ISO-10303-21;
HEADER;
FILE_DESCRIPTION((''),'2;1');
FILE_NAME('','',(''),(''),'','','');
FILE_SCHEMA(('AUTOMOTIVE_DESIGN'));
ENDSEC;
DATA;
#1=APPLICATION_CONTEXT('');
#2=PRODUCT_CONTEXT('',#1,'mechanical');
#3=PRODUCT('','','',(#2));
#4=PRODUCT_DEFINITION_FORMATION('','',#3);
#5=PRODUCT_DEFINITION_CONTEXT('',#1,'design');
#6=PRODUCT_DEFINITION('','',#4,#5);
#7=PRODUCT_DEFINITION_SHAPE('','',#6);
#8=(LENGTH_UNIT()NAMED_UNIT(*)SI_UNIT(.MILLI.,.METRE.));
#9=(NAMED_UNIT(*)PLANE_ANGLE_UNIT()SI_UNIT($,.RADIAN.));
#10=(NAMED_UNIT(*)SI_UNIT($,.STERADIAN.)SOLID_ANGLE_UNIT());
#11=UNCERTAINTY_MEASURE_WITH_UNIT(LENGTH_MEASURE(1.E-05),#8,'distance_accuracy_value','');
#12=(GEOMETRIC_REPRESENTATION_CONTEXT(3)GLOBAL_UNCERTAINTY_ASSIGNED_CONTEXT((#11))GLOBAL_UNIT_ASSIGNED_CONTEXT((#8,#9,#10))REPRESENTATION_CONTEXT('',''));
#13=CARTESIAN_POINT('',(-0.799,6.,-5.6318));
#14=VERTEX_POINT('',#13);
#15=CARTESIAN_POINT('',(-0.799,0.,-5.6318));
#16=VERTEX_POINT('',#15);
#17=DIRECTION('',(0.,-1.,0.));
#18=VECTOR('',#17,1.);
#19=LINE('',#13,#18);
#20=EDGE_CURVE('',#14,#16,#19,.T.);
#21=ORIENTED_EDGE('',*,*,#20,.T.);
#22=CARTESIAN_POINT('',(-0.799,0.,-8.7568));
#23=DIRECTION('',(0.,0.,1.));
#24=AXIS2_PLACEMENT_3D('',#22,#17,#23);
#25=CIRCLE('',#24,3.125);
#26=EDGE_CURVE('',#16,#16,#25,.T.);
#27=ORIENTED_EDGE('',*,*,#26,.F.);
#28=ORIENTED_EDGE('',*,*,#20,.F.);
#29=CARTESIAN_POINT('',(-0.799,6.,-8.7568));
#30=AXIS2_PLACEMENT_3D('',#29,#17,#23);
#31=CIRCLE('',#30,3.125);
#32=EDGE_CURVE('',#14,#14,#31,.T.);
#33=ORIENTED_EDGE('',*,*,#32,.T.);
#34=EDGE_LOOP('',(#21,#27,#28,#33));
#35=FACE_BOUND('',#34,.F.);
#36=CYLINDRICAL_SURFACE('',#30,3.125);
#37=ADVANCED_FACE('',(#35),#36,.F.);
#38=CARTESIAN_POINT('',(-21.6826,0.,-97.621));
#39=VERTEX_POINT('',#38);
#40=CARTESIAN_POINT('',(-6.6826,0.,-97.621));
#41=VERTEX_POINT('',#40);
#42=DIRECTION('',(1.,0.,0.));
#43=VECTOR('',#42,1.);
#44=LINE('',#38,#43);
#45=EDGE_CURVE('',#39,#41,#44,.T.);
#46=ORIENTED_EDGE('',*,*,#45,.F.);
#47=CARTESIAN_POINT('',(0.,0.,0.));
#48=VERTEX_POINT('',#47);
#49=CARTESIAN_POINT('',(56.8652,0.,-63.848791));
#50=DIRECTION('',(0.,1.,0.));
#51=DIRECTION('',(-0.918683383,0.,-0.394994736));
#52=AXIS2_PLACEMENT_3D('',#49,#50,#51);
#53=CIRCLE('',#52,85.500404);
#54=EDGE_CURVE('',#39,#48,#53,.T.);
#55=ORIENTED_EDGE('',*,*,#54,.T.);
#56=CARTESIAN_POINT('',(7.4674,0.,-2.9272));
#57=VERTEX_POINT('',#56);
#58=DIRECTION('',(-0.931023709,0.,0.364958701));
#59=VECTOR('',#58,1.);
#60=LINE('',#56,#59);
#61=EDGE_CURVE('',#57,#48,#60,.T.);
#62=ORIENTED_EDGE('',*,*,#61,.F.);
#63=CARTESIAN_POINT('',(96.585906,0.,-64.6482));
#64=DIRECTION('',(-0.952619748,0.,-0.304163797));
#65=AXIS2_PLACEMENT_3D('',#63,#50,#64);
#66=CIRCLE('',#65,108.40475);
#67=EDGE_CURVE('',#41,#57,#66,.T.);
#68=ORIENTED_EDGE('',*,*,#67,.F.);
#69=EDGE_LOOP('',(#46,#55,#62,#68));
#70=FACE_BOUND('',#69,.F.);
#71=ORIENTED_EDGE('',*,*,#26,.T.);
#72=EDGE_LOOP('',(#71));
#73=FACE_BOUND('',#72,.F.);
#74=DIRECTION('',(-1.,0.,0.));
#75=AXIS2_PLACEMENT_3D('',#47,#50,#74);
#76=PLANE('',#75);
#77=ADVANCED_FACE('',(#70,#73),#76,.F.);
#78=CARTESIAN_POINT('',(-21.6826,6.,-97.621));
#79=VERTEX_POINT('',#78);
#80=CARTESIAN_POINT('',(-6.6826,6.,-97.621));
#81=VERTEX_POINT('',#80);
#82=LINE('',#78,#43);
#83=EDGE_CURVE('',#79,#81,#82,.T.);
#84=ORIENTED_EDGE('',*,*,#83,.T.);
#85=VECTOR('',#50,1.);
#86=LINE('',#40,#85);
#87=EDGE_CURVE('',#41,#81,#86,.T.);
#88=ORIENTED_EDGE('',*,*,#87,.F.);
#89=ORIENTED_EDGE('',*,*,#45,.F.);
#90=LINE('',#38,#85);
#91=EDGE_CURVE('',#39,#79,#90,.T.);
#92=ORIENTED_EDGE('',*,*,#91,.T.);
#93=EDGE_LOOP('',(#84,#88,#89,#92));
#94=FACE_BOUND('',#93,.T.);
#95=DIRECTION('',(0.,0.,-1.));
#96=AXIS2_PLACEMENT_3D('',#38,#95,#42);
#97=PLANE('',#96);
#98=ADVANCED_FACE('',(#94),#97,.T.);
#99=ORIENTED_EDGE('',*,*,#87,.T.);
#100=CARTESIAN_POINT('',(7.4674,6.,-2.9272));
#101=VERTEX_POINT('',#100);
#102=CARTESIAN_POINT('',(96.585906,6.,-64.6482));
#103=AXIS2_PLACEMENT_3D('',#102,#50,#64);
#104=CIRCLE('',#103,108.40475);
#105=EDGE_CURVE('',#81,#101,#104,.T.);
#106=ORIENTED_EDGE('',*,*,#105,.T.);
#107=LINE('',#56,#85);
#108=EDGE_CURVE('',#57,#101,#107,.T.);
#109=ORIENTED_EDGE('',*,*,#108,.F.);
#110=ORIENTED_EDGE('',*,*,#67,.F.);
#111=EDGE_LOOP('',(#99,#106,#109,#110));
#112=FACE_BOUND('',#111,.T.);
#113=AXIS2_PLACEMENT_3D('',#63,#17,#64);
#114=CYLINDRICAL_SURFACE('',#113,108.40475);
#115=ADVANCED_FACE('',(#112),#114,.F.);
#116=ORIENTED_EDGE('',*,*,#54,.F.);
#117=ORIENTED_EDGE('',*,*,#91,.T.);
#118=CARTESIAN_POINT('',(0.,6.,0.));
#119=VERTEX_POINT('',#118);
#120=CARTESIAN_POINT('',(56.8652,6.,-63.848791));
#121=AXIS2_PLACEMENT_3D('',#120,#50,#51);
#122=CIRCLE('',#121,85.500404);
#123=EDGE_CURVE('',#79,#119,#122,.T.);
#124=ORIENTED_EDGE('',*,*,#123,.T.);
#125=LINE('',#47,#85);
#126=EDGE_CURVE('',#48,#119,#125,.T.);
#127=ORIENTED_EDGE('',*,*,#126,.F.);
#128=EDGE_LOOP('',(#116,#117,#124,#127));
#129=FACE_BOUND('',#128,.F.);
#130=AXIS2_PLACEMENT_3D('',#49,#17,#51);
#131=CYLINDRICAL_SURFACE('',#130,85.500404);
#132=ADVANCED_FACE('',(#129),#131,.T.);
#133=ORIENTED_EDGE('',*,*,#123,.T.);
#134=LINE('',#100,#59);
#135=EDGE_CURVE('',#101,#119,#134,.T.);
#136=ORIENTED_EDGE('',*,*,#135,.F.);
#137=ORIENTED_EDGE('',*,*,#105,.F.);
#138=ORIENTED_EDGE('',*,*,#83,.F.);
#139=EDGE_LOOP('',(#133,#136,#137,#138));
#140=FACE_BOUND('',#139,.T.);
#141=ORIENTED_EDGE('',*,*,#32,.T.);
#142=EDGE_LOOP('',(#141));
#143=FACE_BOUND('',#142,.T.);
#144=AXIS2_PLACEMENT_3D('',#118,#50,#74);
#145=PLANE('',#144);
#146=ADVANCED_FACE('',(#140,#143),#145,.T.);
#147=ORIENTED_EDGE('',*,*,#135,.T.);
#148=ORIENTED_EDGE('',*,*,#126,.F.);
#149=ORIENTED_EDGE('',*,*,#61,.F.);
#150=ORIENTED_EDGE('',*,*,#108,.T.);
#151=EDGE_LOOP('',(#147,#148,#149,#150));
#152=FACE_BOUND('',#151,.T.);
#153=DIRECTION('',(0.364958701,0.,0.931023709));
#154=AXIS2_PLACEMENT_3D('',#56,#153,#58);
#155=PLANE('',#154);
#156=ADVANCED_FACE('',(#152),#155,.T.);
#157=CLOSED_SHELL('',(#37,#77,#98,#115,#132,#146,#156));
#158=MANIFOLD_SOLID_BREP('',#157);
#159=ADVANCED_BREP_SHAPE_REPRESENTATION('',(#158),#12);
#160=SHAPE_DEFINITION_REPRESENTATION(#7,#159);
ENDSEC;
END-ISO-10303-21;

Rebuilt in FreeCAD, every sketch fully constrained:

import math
import FreeCAD as App
import Part
import Sketcher
from FreeCAD import Vector
Q = App.Units.Quantity

doc = App.newDocument("Part")
params = doc.addObject("Spreadsheet::Sheet", "Params")
for row, (alias, value) in enumerate([
    ("sketch1_width", "15 mm"),
    ("pad1_length", "6 mm"),
    ("sketch2_diameter", "6.25 mm"),
    ("hole_diameter", "6.25 mm"),
    ("hole_depth", "10 mm"),
], start=1):
    params.set(f"A{row}", alias)
    params.set(f"B{row}", "=" + value)
    params.setAlias(f"B{row}", alias)

body = doc.addObject("PartDesign::Body", "Body")

# Sketch on XZ plane
sketch1 = doc.addObject("Sketcher::SketchObject", "Sketch")
body.addObject(sketch1)
sketch1.AttachmentSupport = (doc.XZ_Plane, [""])
sketch1.MapMode = "FlatFace"
sketch1.addGeometry([
    Part.LineSegment(Vector(-7, -98, 0), Vector(-22, -98, 0)),
    Part.ArcOfCircle(Part.Circle(Vector(57, -64, 0), Vector(0, 0, 1), 86), math.radians(132), math.radians(203)),
    Part.LineSegment(Vector(0, 0, 0), Vector(7, -3, 0)),
    Part.ArcOfCircle(Part.Circle(Vector(97, -65, 0), Vector(0, 0, 1), 108), math.radians(145), math.radians(198)),
], False)
sketch1.addConstraint([
    Sketcher.Constraint("Coincident", 0, 2, 1, 2),
    Sketcher.Constraint("Coincident", 1, 1, 2, 1),
    Sketcher.Constraint("Coincident", 2, 2, 3, 1),
    Sketcher.Constraint("Coincident", 3, 2, 0, 1),
    Sketcher.Constraint("Horizontal", 0),
    Sketcher.Constraint("Coincident", 1, 1, -1, 1),
    Sketcher.Constraint("DistanceX", 0, 2, 0, 1, Q("15 mm")),
    Sketcher.Constraint("Radius", 1, Q("85.5003 mm")),
    Sketcher.Constraint("Radius", 3, Q("108.4047 mm")),
    Sketcher.Constraint("DistanceX", 0, 2, 2, 2, Q("29.15 mm")),
    Sketcher.Constraint("DistanceX", -1, 1, 1, 3, Q("56.865 mm")),
    Sketcher.Constraint("DistanceX", -1, 1, 3, 3, Q("96.586 mm")),
    Sketcher.Constraint("DistanceY", 0, 2, -1, 1, Q("97.621 mm")),
])
sketch1.setExpression("Constraints[6]", "Params.sketch1_width")
pad1 = doc.addObject("PartDesign::Pad", "Pad")
body.addObject(pad1)
pad1.Profile = sketch1
pad1.setExpression("Length", "Params.pad1_length")
pad1.Reversed = True

# Sketch on XZ plane
sketch2 = doc.addObject("Sketcher::SketchObject", "Sketch001")
body.addObject(sketch2)
sketch2.AttachmentSupport = (doc.XZ_Plane, [""])
sketch2.MapMode = "FlatFace"
sketch2.AttachmentOffset = App.Placement(Vector(0, 0, -6), App.Rotation())
sketch2.addGeometry(Part.Circle(Vector(-0.8, -8.8, 0), Vector(0, 0, 1), 3.1), False)
sketch2.addConstraint([
    Sketcher.Constraint("Diameter", 0, Q("6.25 mm")),
    Sketcher.Constraint("DistanceX", 0, 3, -1, 1, Q("0.799 mm")),
    Sketcher.Constraint("DistanceY", 0, 3, -1, 1, Q("8.7568 mm")),
])
sketch2.setExpression("Constraints[0]", "Params.sketch2_diameter")
doc.recompute()
hole = doc.addObject("PartDesign::Hole", "Hole")
body.addObject(hole)
hole.Profile = sketch2
hole.ThreadType = "None"
hole.setExpression("Diameter", "Params.hole_diameter")
hole.DepthType = "Dimension"
hole.setExpression("Depth", "Params.hole_depth")
hole.DrillPoint = "Angled"
hole.DrillPointAngle = 118
hole.Reversed = True

doc.recompute()
